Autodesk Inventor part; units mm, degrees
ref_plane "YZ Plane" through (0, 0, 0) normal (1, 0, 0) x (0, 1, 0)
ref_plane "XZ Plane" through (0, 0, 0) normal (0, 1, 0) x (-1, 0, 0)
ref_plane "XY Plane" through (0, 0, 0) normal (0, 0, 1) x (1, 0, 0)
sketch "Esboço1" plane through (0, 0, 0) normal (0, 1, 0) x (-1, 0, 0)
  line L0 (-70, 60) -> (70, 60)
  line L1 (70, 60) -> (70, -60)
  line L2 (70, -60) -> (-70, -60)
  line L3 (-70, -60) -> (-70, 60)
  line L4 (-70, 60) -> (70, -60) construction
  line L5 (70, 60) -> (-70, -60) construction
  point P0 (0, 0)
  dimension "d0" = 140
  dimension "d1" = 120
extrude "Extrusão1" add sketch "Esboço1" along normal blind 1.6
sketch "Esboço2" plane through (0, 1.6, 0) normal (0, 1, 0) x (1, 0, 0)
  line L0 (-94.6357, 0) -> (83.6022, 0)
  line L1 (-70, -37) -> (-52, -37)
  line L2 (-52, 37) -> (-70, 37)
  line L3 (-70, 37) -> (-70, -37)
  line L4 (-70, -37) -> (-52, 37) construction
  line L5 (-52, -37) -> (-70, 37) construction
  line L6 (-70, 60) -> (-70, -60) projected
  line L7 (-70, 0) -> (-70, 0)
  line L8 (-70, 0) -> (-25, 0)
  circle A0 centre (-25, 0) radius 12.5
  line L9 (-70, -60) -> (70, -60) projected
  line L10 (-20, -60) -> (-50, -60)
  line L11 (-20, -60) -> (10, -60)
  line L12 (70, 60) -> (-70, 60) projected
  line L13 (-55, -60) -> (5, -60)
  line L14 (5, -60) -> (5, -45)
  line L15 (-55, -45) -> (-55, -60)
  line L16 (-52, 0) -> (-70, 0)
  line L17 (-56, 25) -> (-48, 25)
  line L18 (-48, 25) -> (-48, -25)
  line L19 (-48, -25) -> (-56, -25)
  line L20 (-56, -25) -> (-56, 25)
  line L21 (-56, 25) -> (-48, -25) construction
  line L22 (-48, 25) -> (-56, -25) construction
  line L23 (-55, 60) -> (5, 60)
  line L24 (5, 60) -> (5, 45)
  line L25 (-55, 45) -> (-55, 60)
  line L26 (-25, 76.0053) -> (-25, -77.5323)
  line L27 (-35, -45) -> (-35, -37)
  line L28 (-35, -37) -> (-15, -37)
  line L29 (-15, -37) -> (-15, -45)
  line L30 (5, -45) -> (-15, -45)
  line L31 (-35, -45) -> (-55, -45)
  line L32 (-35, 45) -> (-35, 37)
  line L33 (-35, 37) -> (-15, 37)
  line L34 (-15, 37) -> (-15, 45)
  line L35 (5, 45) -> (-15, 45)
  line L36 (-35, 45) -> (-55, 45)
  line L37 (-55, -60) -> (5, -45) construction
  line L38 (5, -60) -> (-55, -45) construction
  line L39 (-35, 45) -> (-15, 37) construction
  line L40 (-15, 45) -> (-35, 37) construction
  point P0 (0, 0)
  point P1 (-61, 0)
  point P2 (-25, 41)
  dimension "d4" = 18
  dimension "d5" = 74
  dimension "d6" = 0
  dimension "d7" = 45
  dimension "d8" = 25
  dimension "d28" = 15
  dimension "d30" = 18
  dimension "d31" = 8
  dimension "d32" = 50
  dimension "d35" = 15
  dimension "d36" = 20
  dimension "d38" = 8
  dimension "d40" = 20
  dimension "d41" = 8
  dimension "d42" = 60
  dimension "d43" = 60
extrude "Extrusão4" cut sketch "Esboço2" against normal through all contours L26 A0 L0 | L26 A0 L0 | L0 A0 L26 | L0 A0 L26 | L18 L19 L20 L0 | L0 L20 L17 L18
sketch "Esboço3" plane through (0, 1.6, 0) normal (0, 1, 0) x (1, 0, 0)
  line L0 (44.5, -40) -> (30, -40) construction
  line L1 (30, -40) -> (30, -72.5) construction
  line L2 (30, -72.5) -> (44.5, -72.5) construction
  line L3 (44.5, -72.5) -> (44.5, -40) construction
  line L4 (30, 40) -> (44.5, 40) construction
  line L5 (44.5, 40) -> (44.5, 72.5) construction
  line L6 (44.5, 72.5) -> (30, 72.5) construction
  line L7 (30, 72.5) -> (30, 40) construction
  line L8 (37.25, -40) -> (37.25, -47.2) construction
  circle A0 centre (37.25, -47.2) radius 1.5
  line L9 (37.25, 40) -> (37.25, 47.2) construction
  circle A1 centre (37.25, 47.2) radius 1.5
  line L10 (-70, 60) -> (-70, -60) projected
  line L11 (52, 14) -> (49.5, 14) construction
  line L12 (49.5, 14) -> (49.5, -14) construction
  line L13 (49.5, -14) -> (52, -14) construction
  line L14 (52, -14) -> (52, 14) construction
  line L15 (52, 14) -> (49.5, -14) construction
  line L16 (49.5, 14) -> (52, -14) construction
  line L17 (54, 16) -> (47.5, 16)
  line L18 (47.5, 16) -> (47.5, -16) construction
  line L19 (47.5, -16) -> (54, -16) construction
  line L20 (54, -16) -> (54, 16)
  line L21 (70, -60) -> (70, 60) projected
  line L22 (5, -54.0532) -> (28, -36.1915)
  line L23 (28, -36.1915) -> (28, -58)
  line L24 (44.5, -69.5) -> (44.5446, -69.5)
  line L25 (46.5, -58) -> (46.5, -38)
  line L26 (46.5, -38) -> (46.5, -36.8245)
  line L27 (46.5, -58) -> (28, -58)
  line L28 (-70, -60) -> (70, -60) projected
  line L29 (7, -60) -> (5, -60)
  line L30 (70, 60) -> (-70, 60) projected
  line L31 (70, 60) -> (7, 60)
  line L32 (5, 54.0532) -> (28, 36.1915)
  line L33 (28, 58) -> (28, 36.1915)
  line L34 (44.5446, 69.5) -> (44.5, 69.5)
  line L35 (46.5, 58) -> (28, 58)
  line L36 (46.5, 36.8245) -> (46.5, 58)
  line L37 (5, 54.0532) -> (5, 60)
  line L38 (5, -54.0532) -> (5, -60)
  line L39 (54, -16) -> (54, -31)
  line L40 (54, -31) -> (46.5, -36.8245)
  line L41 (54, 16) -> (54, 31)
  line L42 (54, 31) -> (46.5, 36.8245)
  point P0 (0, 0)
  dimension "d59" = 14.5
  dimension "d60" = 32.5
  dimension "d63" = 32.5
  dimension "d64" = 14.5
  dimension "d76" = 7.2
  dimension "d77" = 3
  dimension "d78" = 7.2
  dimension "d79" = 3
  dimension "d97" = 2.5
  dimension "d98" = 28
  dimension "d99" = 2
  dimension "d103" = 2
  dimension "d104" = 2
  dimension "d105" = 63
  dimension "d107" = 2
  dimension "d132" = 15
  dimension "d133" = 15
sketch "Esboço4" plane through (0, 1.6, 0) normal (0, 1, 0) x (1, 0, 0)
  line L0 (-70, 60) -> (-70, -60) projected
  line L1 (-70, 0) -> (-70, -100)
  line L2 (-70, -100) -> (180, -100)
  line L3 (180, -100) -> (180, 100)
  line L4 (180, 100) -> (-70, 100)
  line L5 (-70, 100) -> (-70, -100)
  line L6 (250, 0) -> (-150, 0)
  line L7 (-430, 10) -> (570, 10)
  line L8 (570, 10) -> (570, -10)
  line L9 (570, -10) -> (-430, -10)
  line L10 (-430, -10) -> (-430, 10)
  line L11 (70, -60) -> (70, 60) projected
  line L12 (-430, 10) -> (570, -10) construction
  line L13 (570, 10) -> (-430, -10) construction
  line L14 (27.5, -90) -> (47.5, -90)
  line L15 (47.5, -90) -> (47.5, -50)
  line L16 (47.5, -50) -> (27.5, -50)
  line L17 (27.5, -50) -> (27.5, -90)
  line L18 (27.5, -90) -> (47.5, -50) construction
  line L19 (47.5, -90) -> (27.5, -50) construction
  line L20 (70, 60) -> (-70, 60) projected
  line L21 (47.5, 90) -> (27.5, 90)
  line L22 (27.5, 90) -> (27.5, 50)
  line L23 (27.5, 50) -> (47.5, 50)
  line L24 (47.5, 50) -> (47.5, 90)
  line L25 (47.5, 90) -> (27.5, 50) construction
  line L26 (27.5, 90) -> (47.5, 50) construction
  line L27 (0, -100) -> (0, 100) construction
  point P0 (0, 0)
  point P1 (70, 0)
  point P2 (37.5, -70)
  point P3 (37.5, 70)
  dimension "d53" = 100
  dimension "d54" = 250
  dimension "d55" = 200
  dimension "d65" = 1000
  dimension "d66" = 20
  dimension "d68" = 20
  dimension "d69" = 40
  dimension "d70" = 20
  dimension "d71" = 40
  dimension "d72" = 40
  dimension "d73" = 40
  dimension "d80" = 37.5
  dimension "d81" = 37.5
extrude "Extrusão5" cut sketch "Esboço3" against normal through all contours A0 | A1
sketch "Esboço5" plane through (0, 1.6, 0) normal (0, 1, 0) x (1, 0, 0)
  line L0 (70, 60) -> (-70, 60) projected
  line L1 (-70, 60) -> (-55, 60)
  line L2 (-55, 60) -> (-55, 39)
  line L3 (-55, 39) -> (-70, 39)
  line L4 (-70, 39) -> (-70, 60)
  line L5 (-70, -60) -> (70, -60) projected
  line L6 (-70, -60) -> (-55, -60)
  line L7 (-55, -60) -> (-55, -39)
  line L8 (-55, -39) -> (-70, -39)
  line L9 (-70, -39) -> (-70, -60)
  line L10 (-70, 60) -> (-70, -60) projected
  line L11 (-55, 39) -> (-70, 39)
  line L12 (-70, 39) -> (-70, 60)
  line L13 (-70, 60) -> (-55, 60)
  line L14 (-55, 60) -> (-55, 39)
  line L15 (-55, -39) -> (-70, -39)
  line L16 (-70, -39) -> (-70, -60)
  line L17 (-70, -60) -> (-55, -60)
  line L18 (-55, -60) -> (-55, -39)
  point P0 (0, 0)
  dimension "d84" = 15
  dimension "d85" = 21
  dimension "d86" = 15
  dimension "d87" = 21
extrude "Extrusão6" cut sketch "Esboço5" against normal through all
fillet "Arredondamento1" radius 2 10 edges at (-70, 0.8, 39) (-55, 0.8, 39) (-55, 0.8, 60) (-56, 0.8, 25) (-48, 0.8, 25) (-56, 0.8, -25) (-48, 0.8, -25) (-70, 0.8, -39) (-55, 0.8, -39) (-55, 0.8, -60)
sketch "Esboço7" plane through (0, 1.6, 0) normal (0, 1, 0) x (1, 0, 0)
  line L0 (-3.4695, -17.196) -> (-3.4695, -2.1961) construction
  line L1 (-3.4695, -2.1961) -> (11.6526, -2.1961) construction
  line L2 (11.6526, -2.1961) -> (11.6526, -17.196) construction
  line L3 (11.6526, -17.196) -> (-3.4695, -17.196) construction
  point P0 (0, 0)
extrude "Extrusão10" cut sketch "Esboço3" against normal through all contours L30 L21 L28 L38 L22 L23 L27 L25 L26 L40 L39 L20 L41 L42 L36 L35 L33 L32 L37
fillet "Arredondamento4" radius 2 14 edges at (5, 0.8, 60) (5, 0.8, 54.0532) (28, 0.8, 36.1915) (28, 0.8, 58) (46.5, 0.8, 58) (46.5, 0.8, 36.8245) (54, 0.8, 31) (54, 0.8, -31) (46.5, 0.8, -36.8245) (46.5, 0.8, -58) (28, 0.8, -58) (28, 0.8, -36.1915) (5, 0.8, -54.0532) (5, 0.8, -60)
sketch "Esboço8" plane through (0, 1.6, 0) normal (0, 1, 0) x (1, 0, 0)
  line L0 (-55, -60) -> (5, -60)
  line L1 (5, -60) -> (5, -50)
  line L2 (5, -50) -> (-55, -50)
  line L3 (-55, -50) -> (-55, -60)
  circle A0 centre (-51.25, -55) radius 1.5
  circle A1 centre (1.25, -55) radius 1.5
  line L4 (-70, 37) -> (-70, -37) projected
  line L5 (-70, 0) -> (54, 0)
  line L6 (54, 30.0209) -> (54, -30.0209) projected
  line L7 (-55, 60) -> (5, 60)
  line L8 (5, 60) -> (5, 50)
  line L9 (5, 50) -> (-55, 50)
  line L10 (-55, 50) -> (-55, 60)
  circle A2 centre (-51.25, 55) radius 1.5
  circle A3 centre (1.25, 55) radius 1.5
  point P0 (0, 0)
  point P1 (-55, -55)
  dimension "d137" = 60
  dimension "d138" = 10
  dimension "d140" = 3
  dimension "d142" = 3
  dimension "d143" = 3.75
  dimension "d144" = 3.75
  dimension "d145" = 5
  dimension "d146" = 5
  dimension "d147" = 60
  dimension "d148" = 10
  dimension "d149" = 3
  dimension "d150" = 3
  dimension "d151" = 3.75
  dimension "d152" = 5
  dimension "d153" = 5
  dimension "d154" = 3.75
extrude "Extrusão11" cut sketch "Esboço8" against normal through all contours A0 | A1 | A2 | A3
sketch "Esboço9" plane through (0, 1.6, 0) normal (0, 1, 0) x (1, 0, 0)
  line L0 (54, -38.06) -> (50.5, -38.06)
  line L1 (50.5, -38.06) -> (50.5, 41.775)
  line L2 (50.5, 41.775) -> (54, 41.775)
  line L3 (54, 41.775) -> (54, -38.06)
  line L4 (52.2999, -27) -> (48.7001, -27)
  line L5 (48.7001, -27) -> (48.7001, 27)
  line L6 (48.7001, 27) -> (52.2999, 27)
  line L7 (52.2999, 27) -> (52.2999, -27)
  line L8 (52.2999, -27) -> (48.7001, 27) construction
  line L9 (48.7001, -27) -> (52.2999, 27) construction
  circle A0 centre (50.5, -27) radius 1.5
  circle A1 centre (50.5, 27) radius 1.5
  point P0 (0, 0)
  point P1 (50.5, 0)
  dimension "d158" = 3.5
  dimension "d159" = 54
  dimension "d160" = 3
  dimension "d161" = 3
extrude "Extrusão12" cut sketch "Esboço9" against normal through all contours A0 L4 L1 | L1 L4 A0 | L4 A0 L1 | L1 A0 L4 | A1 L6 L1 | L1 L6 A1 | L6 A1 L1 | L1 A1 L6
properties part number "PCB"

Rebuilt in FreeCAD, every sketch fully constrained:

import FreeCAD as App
import Part
import Sketcher

V = App.Vector


def edges_at(feature, points):
    """Names of the edges that pass closest to the given points."""
    edges = feature.Shape.Edges
    near = lambda p: min(range(len(edges)), key=lambda i: edges[i].distToShape(Part.Vertex(*p))[0])
    return sorted({f"Edge{near(p) + 1}" for p in points})

doc = App.newDocument("Part")
body = doc.addObject("PartDesign::Body", "Body")

# Sketch on XZ plane
sketch1 = body.newObject("Sketcher::SketchObject", "Sketch")
sketch1.AttachmentSupport = (doc.getObject("XZ_Plane"), [""])
sketch1.MapMode = "FlatFace"
sketch1.addGeometry([
    Part.LineSegment(V(-70, 60, 0), V(70, 60, 0)),
    Part.LineSegment(V(70, 60, 0), V(70, -60, 0)),
    Part.LineSegment(V(70, -60, 0), V(-70, -60, 0)),
    Part.LineSegment(V(-70, -60, 0), V(-70, 60, 0)),
], False)
sketch1.addConstraint([
    Sketcher.Constraint("Coincident", 0, 2, 1, 1),
    Sketcher.Constraint("Coincident", 1, 2, 2, 1),
    Sketcher.Constraint("Coincident", 2, 2, 3, 1),
    Sketcher.Constraint("Coincident", 3, 2, 0, 1),
    Sketcher.Constraint("Horizontal", 0),
    Sketcher.Constraint("Vertical", 1),
    Sketcher.Constraint("Horizontal", 2),
    Sketcher.Constraint("Vertical", 3),
    Sketcher.Constraint("Symmetric", 0, 2, 2, 2, -1, 1),
    Sketcher.Constraint("DistanceX", 0, 1, 0, 2, 140.0),
    Sketcher.Constraint("DistanceY", 1, 2, 1, 1, 120.0),
])
pad1 = body.newObject("PartDesign::Pad", "Pad")
pad1.Profile = sketch1
pad1.Length = 1.6
pad1.Reversed = True

# Sketch on XZ plane
sketch2 = body.newObject("Sketcher::SketchObject", "Sketch001")
sketch2.AttachmentSupport = (doc.getObject("XZ_Plane"), [""])
sketch2.MapMode = "FlatFace"
sketch2.AttachmentOffset = App.Placement(V(0, 0, -1.6), App.Rotation())
sketch2.addGeometry([
    Part.Circle(V(-25, 0, 0), V(0, 0, 1), 12.5),  # 0
    Part.LineSegment(V(-48, 25, 0), V(-48, -25, 0)),  # 1
    Part.LineSegment(V(-48, -25, 0), V(-56, -25, 0)),  # 2
    Part.LineSegment(V(-56, -25, 0), V(-56, 25, 0)),  # 3
    Part.LineSegment(V(-56, 25, 0), V(-48, 25, 0)),  # 4
], False)
sketch2.addConstraint([
    Sketcher.Constraint("Coincident", 1, 2, 2, 1),
    Sketcher.Constraint("Coincident", 2, 2, 3, 1),
    Sketcher.Constraint("Coincident", 3, 2, 4, 1),
    Sketcher.Constraint("Coincident", 4, 2, 1, 1),
    Sketcher.Constraint("Vertical", 1),
    Sketcher.Constraint("Horizontal", 2),
    Sketcher.Constraint("Vertical", 3),
    Sketcher.Constraint("Horizontal", 4),
    Sketcher.Constraint("PointOnObject", 0, 3, -1),
    Sketcher.Constraint("Diameter", 0, 25.0),
    Sketcher.Constraint("DistanceX", 2, 2, 2, 1, 8.0),
    Sketcher.Constraint("DistanceY", 1, 2, 1, 1, 50.0),
    Sketcher.Constraint("DistanceX", 0, 3, -1, 1, 25.0),
    Sketcher.Constraint("DistanceY", 1, 2, -1, 1, 25.0),
    Sketcher.Constraint("DistanceX", 1, 2, -1, 1, 48.0),
])
pocket1 = body.newObject("PartDesign::Pocket", "Pocket")
pocket1.Profile = sketch2
pocket1.Type = "ThroughAll"
pocket1.Reversed = True

# Sketch on XZ plane
sketch3 = body.newObject("Sketcher::SketchObject", "Sketch002")
sketch3.AttachmentSupport = (doc.getObject("XZ_Plane"), [""])
sketch3.MapMode = "FlatFace"
sketch3.AttachmentOffset = App.Placement(V(0, 0, -1.6), App.Rotation())
sketch3.addGeometry([
    Part.Circle(V(37.25, 47.2, 0), V(0, 0, 1), 1.5),
    Part.Circle(V(37.25, -47.2, 0), V(0, 0, 1), 1.5),
], False)
sketch3.addConstraint([
    Sketcher.Constraint("Equal", 0, 1),
    Sketcher.Constraint("Symmetric", 0, 3, 1, 3, -1),
    Sketcher.Constraint("Diameter", 0, 3.0),
    Sketcher.Constraint("DistanceY", -1, 1, 0, 3, 47.2),
    Sketcher.Constraint("DistanceX", -1, 1, 0, 3, 37.25),
])
pocket2 = body.newObject("PartDesign::Pocket", "Pocket001")
pocket2.Profile = sketch3
pocket2.Type = "ThroughAll"
pocket2.Reversed = True

# Sketch on XZ plane
sketch4 = body.newObject("Sketcher::SketchObject", "Sketch003")
sketch4.AttachmentSupport = (doc.getObject("XZ_Plane"), [""])
sketch4.MapMode = "FlatFace"
sketch4.AttachmentOffset = App.Placement(V(0, 0, -1.6), App.Rotation())
sketch4.addGeometry([
    Part.LineSegment(V(-55, -39, 0), V(-55, -60, 0)),  # 0
    Part.LineSegment(V(-55, -60, 0), V(-70, -60, 0)),  # 1
    Part.LineSegment(V(-70, -60, 0), V(-70, -39, 0)),  # 2
    Part.LineSegment(V(-70, -39, 0), V(-55, -39, 0)),  # 3
    Part.LineSegment(V(-55, 39, 0), V(-70, 39, 0)),  # 4
    Part.LineSegment(V(-70, 39, 0), V(-70, 60, 0)),  # 5
    Part.LineSegment(V(-70, 60, 0), V(-55, 60, 0)),  # 6
    Part.LineSegment(V(-55, 60, 0), V(-55, 39, 0)),  # 7
], False)
sketch4.addConstraint([
    Sketcher.Constraint("Coincident", 0, 2, 1, 1),
    Sketcher.Constraint("Coincident", 1, 2, 2, 1),
    Sketcher.Constraint("Coincident", 2, 2, 3, 1),
    Sketcher.Constraint("Coincident", 3, 2, 0, 1),
    Sketcher.Constraint("Coincident", 4, 2, 5, 1),
    Sketcher.Constraint("Coincident", 5, 2, 6, 1),
    Sketcher.Constraint("Coincident", 6, 2, 7, 1),
    Sketcher.Constraint("Coincident", 7, 2, 4, 1),
    Sketcher.Constraint("Vertical", 0),
    Sketcher.Constraint("Horizontal", 1),
    Sketcher.Constraint("Vertical", 2),
    Sketcher.Constraint("Horizontal", 3),
    Sketcher.Constraint("Horizontal", 4),
    Sketcher.Constraint("Vertical", 5),
    Sketcher.Constraint("Horizontal", 6),
    Sketcher.Constraint("Vertical", 7),
    Sketcher.Constraint("Symmetric", 2, 2, 4, 2, -1),
    Sketcher.Constraint("Symmetric", 0, 2, 6, 2, -1),
    Sketcher.Constraint("DistanceX", 1, 2, 1, 1, 15.0),
    Sketcher.Constraint("DistanceY", 0, 2, 0, 1, 21.0),
    Sketcher.Constraint("DistanceX", 0, 2, -1, 1, 55.0),
    Sketcher.Constraint("DistanceY", 0, 2, -1, 1, 60.0),
])
pocket3 = body.newObject("PartDesign::Pocket", "Pocket002")
pocket3.Profile = sketch4
pocket3.Type = "ThroughAll"
pocket3.Reversed = True
doc.recompute()

fillet = body.newObject("PartDesign::Fillet", "Fillet")
fillet.Base = (pocket3, edges_at(pocket3, [
    (-70, 0.8, 39),
    (-55, 0.8, 39),
    (-55, 0.8, 60),
    (-56, 0.8, 25),
    (-48, 0.8, 25),
    (-56, 0.8, -25),
    (-48, 0.8, -25),
    (-70, 0.8, -39),
    (-55, 0.8, -39),
    (-55, 0.8, -60),
]))
fillet.Radius = 2

# Sketch on XZ plane
sketch5 = body.newObject("Sketcher::SketchObject", "Sketch004")
sketch5.AttachmentSupport = (doc.getObject("XZ_Plane"), [""])
sketch5.MapMode = "FlatFace"
sketch5.AttachmentOffset = App.Placement(V(0, 0, -1.6), App.Rotation())
sketch5.addGeometry([
    Part.LineSegment(V(70, -60, 0), V(5, -60, 0)),  # 0
    Part.LineSegment(V(5, -60, 0), V(5, -54.0532, 0)),  # 1
    Part.LineSegment(V(5, -54.0532, 0), V(28, -36.1915, 0)),  # 2
    Part.LineSegment(V(28, -36.1915, 0), V(28, -58, 0)),  # 3
    Part.LineSegment(V(28, -58, 0), V(46.5, -58, 0)),  # 4
    Part.LineSegment(V(46.5, -58, 0), V(46.5, -36.8245, 0)),  # 5
    Part.LineSegment(V(46.5, -36.8245, 0), V(54, -31, 0)),  # 6
    Part.LineSegment(V(54, -31, 0), V(54, 31, 0)),  # 7
    Part.LineSegment(V(54, 31, 0), V(46.5, 36.8245, 0)),  # 8
    Part.LineSegment(V(46.5, 36.8245, 0), V(46.5, 58, 0)),  # 9
    Part.LineSegment(V(46.5, 58, 0), V(28, 58, 0)),  # 10
    Part.LineSegment(V(28, 58, 0), V(28, 36.1915, 0)),  # 11
    Part.LineSegment(V(28, 36.1915, 0), V(5, 54.0532, 0)),  # 12
    Part.LineSegment(V(5, 54.0532, 0), V(5, 60, 0)),  # 13
    Part.LineSegment(V(5, 60, 0), V(70, 60, 0)),  # 14
    Part.LineSegment(V(70, 60, 0), V(70, -60, 0)),  # 15
], False)
sketch5.addConstraint([
    Sketcher.Constraint("Coincident", 0, 2, 1, 1),
    Sketcher.Constraint("Coincident", 1, 2, 2, 1),
    Sketcher.Constraint("Coincident", 2, 2, 3, 1),
    Sketcher.Constraint("Coincident", 3, 2, 4, 1),
    Sketcher.Constraint("Coincident", 4, 2, 5, 1),
    Sketcher.Constraint("Coincident", 5, 2, 6, 1),
    Sketcher.Constraint("Coincident", 6, 2, 7, 1),
    Sketcher.Constraint("Coincident", 7, 2, 8, 1),
    Sketcher.Constraint("Coincident", 8, 2, 9, 1),
    Sketcher.Constraint("Coincident", 9, 2, 10, 1),
    Sketcher.Constraint("Coincident", 10, 2, 11, 1),
    Sketcher.Constraint("Coincident", 11, 2, 12, 1),
    Sketcher.Constraint("Coincident", 12, 2, 13, 1),
    Sketcher.Constraint("Coincident", 13, 2, 14, 1),
    Sketcher.Constraint("Coincident", 14, 2, 15, 1),
    Sketcher.Constraint("Coincident", 15, 2, 0, 1),
    Sketcher.Constraint("Horizontal", 0),
    Sketcher.Constraint("Vertical", 1),
    Sketcher.Constraint("Vertical", 3),
    Sketcher.Constraint("Horizontal", 4),
    Sketcher.Constraint("Vertical", 5),
    Sketcher.Constraint("Vertical", 7),
    Sketcher.Constraint("Vertical", 9),
    Sketcher.Constraint("Horizontal", 10),
    Sketcher.Constraint("Vertical", 11),
    Sketcher.Constraint("Vertical", 13),
    Sketcher.Constraint("Horizontal", 14),
    Sketcher.Constraint("Vertical", 15),
    Sketcher.Constraint("Symmetric", 5, 2, 8, 2, -1),
    Sketcher.Constraint("Symmetric", 3, 2, 10, 2, -1),
    Sketcher.Constraint("Symmetric", 1, 2, 12, 2, -1),
    Sketcher.Constraint("Parallel", 2, 6),
    Sketcher.Constraint("Parallel", 8, 12),
    Sketcher.Constraint("Equal", 3, 11),
    Sketcher.Constraint("Equal", 1, 13),
    Sketcher.Constraint("DistanceX", -1, 1, 2, 2, 28.0),
    Sketcher.Constraint("DistanceY", 0, 2, 3, 2, 2.0),
    Sketcher.Constraint("DistanceX", 0, 2, 0, 1, 65.0),
    Sketcher.Constraint("DistanceY", 7, 1, 7, 2, 62.0),
    Sketcher.Constraint("DistanceY", 15, 2, 15, 1, 120.0),
    Sketcher.Constraint("DistanceX", 4, 1, 4, 2, 18.5),
    Sketcher.Constraint("DistanceX", -1, 1, 0, 2, 5.0),
    Sketcher.Constraint("DistanceX", -1, 1, 6, 2, 54.0),
    Sketcher.Constraint("Distance", 6, 9.496),
    Sketcher.Constraint("DistanceY", 1, 1, 1, 2, 5.9468),
])
pocket4 = body.newObject("PartDesign::Pocket", "Pocket003")
pocket4.Profile = sketch5
pocket4.Type = "ThroughAll"
pocket4.Reversed = True
doc.recompute()

fillet2 = body.newObject("PartDesign::Fillet", "Fillet001")
fillet2.Base = (pocket4, edges_at(pocket4, [
    (5, 0.8, 60),
    (5, 0.8, 54.053),
    (28, 0.8, 36.191),
    (28, 0.8, 58),
    (46.5, 0.8, 58),
    (46.5, 0.8, 36.825),
    (54, 0.8, 31),
    (54, 0.8, -31),
    (46.5, 0.8, -36.825),
    (46.5, 0.8, -58),
    (28, 0.8, -58),
    (28, 0.8, -36.191),
    (5, 0.8, -54.053),
    (5, 0.8, -60),
]))
fillet2.Radius = 2

# Sketch on XZ plane
sketch6 = body.newObject("Sketcher::SketchObject", "Sketch005")
sketch6.AttachmentSupport = (doc.getObject("XZ_Plane"), [""])
sketch6.MapMode = "FlatFace"
sketch6.AttachmentOffset = App.Placement(V(0, 0, -1.6), App.Rotation())
sketch6.addGeometry([
    Part.Circle(V(-51.25, 55, 0), V(0, 0, 1), 1.5),
    Part.Circle(V(1.25, 55, 0), V(0, 0, 1), 1.5),
    Part.Circle(V(-51.25, -55, 0), V(0, 0, 1), 1.5),
    Part.Circle(V(1.25, -55, 0), V(0, 0, 1), 1.5),
], False)
sketch6.addConstraint([
    Sketcher.Constraint("Equal", 0, 1),
    Sketcher.Constraint("Equal", 1, 2),
    Sketcher.Constraint("Equal", 2, 3),
    Sketcher.Constraint("Symmetric", 0, 3, 2, 3, -1),
    Sketcher.Constraint("Symmetric", 1, 3, 3, 3, -1),
    Sketcher.Constraint("Horizontal", 0, 3, 1, 3),
    Sketcher.Constraint("Diameter", 0, 3.0),
    Sketcher.Constraint("DistanceY", -1, 1, 0, 3, 55.0),
    Sketcher.Constraint("DistanceX", 0, 3, 1, 3, 52.5),
    Sketcher.Constraint("DistanceX", 0, 3, -1, 1, 51.25),
])
pocket5 = body.newObject("PartDesign::Pocket", "Pocket004")
pocket5.Profile = sketch6
pocket5.Type = "ThroughAll"
pocket5.Reversed = True

# Sketch on XZ plane
sketch7 = body.newObject("Sketcher::SketchObject", "Sketch006")
sketch7.AttachmentSupport = (doc.getObject("XZ_Plane"), [""])
sketch7.MapMode = "FlatFace"
sketch7.AttachmentOffset = App.Placement(V(0, 0, -1.6), App.Rotation())
sketch7.addGeometry([
    Part.Circle(V(50.5, 27, 0), V(0, 0, 1), 1.5),
    Part.Circle(V(50.5, -27, 0), V(0, 0, 1), 1.5),
], False)
sketch7.addConstraint([
    Sketcher.Constraint("Equal", 0, 1),
    Sketcher.Constraint("Symmetric", 0, 3, 1, 3, -1),
    Sketcher.Constraint("Diameter", 0, 3.0),
    Sketcher.Constraint("DistanceY", 1, 3, 0, 3, 54.0),
    Sketcher.Constraint("DistanceX", -1, 1, 0, 3, 50.5),
])
pocket6 = body.newObject("PartDesign::Pocket", "Pocket005")
pocket6.Profile = sketch7
pocket6.Type = "ThroughAll"
pocket6.Reversed = True

doc.recompute()
